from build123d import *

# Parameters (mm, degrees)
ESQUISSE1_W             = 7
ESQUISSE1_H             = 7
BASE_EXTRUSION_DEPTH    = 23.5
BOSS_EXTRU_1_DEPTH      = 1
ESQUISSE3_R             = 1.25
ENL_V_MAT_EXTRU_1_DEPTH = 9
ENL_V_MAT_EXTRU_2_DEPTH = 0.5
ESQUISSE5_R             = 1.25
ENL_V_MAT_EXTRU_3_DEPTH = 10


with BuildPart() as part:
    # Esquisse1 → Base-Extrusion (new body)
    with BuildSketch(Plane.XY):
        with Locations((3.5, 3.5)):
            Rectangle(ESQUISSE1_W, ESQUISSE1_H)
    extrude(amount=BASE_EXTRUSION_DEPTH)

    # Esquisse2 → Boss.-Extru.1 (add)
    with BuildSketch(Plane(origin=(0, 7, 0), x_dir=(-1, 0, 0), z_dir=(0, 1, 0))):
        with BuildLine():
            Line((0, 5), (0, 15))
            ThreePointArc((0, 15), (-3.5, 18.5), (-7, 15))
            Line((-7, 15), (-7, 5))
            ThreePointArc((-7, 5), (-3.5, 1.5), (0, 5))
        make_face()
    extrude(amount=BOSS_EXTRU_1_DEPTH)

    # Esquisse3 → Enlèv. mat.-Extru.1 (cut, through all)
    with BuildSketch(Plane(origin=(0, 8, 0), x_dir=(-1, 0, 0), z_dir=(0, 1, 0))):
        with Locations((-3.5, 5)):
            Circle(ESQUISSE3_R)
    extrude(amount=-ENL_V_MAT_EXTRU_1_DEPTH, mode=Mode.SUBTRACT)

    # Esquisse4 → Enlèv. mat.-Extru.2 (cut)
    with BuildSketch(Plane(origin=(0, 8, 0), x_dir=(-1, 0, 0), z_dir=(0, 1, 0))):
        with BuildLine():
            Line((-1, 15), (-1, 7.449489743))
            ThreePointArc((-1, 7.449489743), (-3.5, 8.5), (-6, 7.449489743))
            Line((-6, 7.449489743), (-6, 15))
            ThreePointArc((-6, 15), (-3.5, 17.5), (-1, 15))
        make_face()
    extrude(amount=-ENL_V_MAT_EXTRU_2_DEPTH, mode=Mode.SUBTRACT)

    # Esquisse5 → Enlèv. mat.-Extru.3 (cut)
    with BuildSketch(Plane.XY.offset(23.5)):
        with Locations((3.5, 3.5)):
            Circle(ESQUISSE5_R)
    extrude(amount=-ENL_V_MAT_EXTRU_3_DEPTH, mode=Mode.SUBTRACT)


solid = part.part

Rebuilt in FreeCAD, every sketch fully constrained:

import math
import FreeCAD as App
import Part
import Sketcher
from FreeCAD import Vector
Q = App.Units.Quantity

doc = App.newDocument("Part")
body = doc.addObject("PartDesign::Body", "Body")

sketch1 = body.newObject("Sketcher::SketchObject", "Sketch")
sketch1.AttachmentSupport = (doc.getObject("XY_Plane"), [""])
sketch1.MapMode = "FlatFace"
sketch1.addGeometry([
    Part.LineSegment(Vector(0, 7, 0), Vector(0, 0, 0)),
    Part.LineSegment(Vector(0, 0, 0), Vector(7, 0, 0)),
    Part.LineSegment(Vector(7, 0, 0), Vector(7, 7, 0)),
    Part.LineSegment(Vector(7, 7, 0), Vector(0, 7, 0)),
], False)
sketch1.addConstraint([
    Sketcher.Constraint("Coincident", 0, 2, 1, 1),
    Sketcher.Constraint("Coincident", 1, 2, 2, 1),
    Sketcher.Constraint("Coincident", 2, 2, 3, 1),
    Sketcher.Constraint("Coincident", 3, 2, 0, 1),
    Sketcher.Constraint("Vertical", 0),
    Sketcher.Constraint("Horizontal", 1),
    Sketcher.Constraint("Vertical", 2),
    Sketcher.Constraint("Horizontal", 3),
    Sketcher.Constraint("Coincident", 0, 2, -1, 1),
    Sketcher.Constraint("Equal", 3, 0),
    Sketcher.Constraint("DistanceX", 1, 1, 1, 2, Q("7 mm")),
])
pad1 = body.newObject("PartDesign::Pad", "Pad")
pad1.Profile = sketch1
pad1.Length = 23.5

sketch2 = body.newObject("Sketcher::SketchObject", "Sketch001")
sketch2.AttachmentSupport = (doc.getObject("XZ_Plane"), [""])
sketch2.MapMode = "FlatFace"
sketch2.AttachmentOffset = App.Placement(Vector(0, 0, -7), App.Rotation())
sketch2.addGeometry([
    Part.LineSegment(Vector(0, 5, 0), Vector(0, 15, 0)),
    Part.ArcOfCircle(Part.Circle(Vector(3.5, 15, 0), Vector(0, 0, 1), 3.5), math.radians(0), math.radians(180)),
    Part.LineSegment(Vector(7, 15, 0), Vector(7, 5, 0)),
    Part.ArcOfCircle(Part.Circle(Vector(3.5, 5, 0), Vector(0, 0, 1), 3.5), math.radians(180), math.radians(360)),
], False)
sketch2.addConstraint([
    Sketcher.Constraint("Tangent", 0, 2, 1, 2),
    Sketcher.Constraint("Tangent", 1, 1, 2, 1),
    Sketcher.Constraint("Tangent", 2, 2, 3, 2),
    Sketcher.Constraint("Tangent", 3, 1, 0, 1),
    Sketcher.Constraint("Vertical", 0),
    Sketcher.Constraint("Vertical", 2),
    Sketcher.Constraint("PointOnObject", 0, 2, -2),
    Sketcher.Constraint("Radius", 1, Q("3.5 mm")),
    Sketcher.Constraint("DistanceY", 0, 1, 0, 2, Q("10 mm")),
    Sketcher.Constraint("DistanceY", -1, 1, 1, 3, Q("15 mm")),
])
pad2 = body.newObject("PartDesign::Pad", "Pad001")
pad2.Profile = sketch2
pad2.Length = 1
pad2.Reversed = True

sketch3 = body.newObject("Sketcher::SketchObject", "Sketch002")
sketch3.AttachmentSupport = (doc.getObject("XZ_Plane"), [""])
sketch3.MapMode = "FlatFace"
sketch3.AttachmentOffset = App.Placement(Vector(0, 0, -8), App.Rotation())
sketch3.addGeometry(Part.Circle(Vector(3.5, 5, 0), Vector(0, 0, 1), 1.2), False)
sketch3.addConstraint([
    Sketcher.Constraint("Diameter", 0, Q("2.5 mm")),
    Sketcher.Constraint("DistanceY", -1, 1, 0, 3, Q("5 mm")),
    Sketcher.Constraint("DistanceX", -1, 1, 0, 3, Q("3.5 mm")),
])
pocket1 = body.newObject("PartDesign::Pocket", "Pocket")
pocket1.Profile = sketch3
pocket1.Type = "ThroughAll"
pocket1.Reversed = True

sketch4 = body.newObject("Sketcher::SketchObject", "Sketch003")
sketch4.AttachmentSupport = (doc.getObject("XZ_Plane"), [""])
sketch4.MapMode = "FlatFace"
sketch4.AttachmentOffset = App.Placement(Vector(0, 0, -8), App.Rotation())
sketch4.addGeometry([
    Part.LineSegment(Vector(1, 7.4, 0), Vector(1, 15, 0)),
    Part.ArcOfCircle(Part.Circle(Vector(3.5, 15, 0), Vector(0, 0, 1), 2.5), math.radians(0), math.radians(180)),
    Part.LineSegment(Vector(6, 15, 0), Vector(6, 7.4, 0)),
    Part.ArcOfCircle(Part.Circle(Vector(3.5, 5, 0), Vector(0, 0, 1), 3.5), math.radians(44), math.radians(136)),
], False)
sketch4.addConstraint([
    Sketcher.Constraint("Tangent", 0, 2, 1, 2),
    Sketcher.Constraint("Tangent", 1, 1, 2, 1),
    Sketcher.Constraint("Coincident", 2, 2, 3, 1),
    Sketcher.Constraint("Coincident", 3, 2, 0, 1),
    Sketcher.Constraint("Vertical", 0),
    Sketcher.Constraint("Vertical", 2),
    Sketcher.Constraint("Horizontal", 2, 2, 3, 2),
    Sketcher.Constraint("Radius", 1, Q("2.5 mm")),
    Sketcher.Constraint("Radius", 3, Q("3.5 mm")),
    Sketcher.Constraint("DistanceY", -1, 1, 1, 3, Q("15 mm")),
    Sketcher.Constraint("DistanceY", -1, 1, 3, 3, Q("5 mm")),
    Sketcher.Constraint("DistanceX", -1, 1, 0, 2, Q("1 mm")),
])
pocket2 = body.newObject("PartDesign::Pocket", "Pocket001")
pocket2.Profile = sketch4
pocket2.Length = 0.5
pocket2.Reversed = True

sketch5 = body.newObject("Sketcher::SketchObject", "Sketch004")
sketch5.AttachmentSupport = (doc.getObject("XY_Plane"), [""])
sketch5.MapMode = "FlatFace"
sketch5.AttachmentOffset = App.Placement(Vector(0, 0, 23.5), App.Rotation())
sketch5.addGeometry(Part.Circle(Vector(3.5, 3.5, 0), Vector(0, 0, 1), 1.2), False)
sketch5.addConstraint([
    Sketcher.Constraint("Diameter", 0, Q("2.5 mm")),
    Sketcher.Constraint("DistanceX", -1, 1, 0, 3, Q("3.5 mm")),
    Sketcher.Constraint("DistanceY", -1, 1, 0, 3, Q("3.5 mm")),
])
pocket3 = body.newObject("PartDesign::Pocket", "Pocket002")
pocket3.Profile = sketch5
pocket3.Length = 10

doc.recompute()
